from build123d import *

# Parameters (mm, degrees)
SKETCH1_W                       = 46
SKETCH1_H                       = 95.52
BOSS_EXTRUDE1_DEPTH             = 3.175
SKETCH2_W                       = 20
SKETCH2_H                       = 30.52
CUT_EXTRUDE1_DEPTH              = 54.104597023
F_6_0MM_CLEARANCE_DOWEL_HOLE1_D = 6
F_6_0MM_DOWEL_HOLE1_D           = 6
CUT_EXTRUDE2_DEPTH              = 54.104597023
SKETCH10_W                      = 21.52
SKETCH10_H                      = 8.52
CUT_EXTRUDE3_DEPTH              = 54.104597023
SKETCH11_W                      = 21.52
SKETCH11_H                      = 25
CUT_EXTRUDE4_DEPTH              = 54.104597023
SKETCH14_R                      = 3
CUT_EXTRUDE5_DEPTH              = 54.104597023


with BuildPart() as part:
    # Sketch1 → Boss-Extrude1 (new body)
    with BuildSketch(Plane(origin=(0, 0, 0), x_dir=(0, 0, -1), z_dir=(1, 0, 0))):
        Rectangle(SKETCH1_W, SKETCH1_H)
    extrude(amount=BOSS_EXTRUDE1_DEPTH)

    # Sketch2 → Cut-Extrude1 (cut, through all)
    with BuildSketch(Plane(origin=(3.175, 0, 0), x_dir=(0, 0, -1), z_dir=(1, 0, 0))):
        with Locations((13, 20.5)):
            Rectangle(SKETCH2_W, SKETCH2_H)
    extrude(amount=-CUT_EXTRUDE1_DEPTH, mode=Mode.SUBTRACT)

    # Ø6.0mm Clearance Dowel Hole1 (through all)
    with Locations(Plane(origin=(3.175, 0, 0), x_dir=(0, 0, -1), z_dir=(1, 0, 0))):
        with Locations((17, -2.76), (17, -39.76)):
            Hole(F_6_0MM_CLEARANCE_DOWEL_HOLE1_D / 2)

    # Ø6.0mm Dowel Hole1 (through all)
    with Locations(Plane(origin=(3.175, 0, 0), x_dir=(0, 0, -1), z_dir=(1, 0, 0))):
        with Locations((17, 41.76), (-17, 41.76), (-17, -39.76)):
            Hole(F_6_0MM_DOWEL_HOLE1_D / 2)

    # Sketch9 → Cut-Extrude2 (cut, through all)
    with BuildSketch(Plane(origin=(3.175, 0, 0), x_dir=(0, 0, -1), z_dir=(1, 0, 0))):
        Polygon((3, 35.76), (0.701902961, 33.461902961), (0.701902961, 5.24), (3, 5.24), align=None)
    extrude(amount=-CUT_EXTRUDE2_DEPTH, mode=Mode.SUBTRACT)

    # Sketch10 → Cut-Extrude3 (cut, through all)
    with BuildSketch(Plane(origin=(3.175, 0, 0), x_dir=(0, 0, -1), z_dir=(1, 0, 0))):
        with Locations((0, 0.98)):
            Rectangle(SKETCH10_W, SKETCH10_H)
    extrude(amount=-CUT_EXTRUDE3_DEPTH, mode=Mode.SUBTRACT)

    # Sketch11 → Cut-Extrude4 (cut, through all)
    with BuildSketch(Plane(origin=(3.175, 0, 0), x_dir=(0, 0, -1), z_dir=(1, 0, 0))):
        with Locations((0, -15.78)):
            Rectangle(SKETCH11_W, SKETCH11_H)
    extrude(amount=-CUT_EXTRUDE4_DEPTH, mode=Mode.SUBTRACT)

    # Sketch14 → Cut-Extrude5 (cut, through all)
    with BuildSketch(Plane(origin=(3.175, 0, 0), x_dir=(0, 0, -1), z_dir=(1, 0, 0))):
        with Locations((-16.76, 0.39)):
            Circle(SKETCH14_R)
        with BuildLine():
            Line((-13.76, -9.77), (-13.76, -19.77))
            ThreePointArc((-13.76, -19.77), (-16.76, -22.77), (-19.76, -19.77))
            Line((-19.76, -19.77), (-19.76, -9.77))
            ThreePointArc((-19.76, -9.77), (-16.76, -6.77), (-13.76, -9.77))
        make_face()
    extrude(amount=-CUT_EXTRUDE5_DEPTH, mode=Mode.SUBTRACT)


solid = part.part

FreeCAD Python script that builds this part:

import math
import FreeCAD as App
import Part
import Sketcher

V = App.Vector
Q = App.Units.Quantity

doc = App.newDocument("Part")
params = doc.addObject("Spreadsheet::Sheet", "Params")
for row, (alias, value) in enumerate([
    ("sketch1_height", "46 mm"),
    ("sketch1_width", "95.52 mm"),
    ("pad1_length", "3.175 mm"),
    ("sketch2_height", "20 mm"),
    ("sketch2_width", "30.52 mm"),
    ("sketch3_diameter", "6 mm"),
    ("hole_diameter", "6 mm"),
    ("sketch4_diameter", "6 mm"),
    ("hole2_diameter", "6 mm"),
    ("sketch5_width", "30.52 mm"),
    ("sketch5_length", "3.25 mm"),
    ("sketch6_width", "8.52 mm"),
    ("sketch6_height", "21.52 mm"),
    ("sketch7_width", "25 mm"),
    ("sketch7_height", "21.52 mm"),
    ("sketch8_diameter", "6 mm"),
    ("sketch8_width", "10 mm"),
], start=1):
    params.set(f"A{row}", alias)
    params.set(f"B{row}", "=" + value)
    params.setAlias(f"B{row}", alias)

body = doc.addObject("PartDesign::Body", "Body")

# Sketch on YZ plane
sketch1 = body.newObject("Sketcher::SketchObject", "Sketch")
sketch1.AttachmentSupport = (doc.getObject("YZ_Plane"), [""])
sketch1.MapMode = "FlatFace"
sketch1.addGeometry([
    Part.LineSegment(V(48, 23, 0), V(-48, 23, 0)),
    Part.LineSegment(V(-48, 23, 0), V(-48, -23, 0)),
    Part.LineSegment(V(-48, -23, 0), V(48, -23, 0)),
    Part.LineSegment(V(48, -23, 0), V(48, 23, 0)),
], False)
sketch1.addConstraint([
    Sketcher.Constraint("Coincident", 0, 2, 1, 1),
    Sketcher.Constraint("Coincident", 1, 2, 2, 1),
    Sketcher.Constraint("Coincident", 2, 2, 3, 1),
    Sketcher.Constraint("Coincident", 3, 2, 0, 1),
    Sketcher.Constraint("Horizontal", 0),
    Sketcher.Constraint("Vertical", 1),
    Sketcher.Constraint("Horizontal", 2),
    Sketcher.Constraint("Vertical", 3),
    Sketcher.Constraint("Symmetric", 0, 2, 2, 2, -1, 1),
    Sketcher.Constraint("DistanceY", 1, 2, 1, 1, 46.0),
    Sketcher.Constraint("DistanceX", 0, 2, 0, 1, 95.52),
])
sketch1.setExpression("Constraints[9]", "Params.sketch1_height")
sketch1.setExpression("Constraints[10]", "Params.sketch1_width")
pad1 = body.newObject("PartDesign::Pad", "Pad")
pad1.Profile = sketch1
pad1.setExpression("Length", "Params.pad1_length")

# Sketch on YZ plane
sketch2 = body.newObject("Sketcher::SketchObject", "Sketch001")
sketch2.AttachmentSupport = (doc.getObject("YZ_Plane"), [""])
sketch2.MapMode = "FlatFace"
sketch2.AttachmentOffset = App.Placement(V(0, 0, 3.175), App.Rotation())
sketch2.addGeometry([
    Part.LineSegment(V(36, -3, 0), V(5, -3, 0)),
    Part.LineSegment(V(5, -3, 0), V(5, -23, 0)),
    Part.LineSegment(V(5, -23, 0), V(36, -23, 0)),
    Part.LineSegment(V(36, -23, 0), V(36, -3, 0)),
], False)
sketch2.addConstraint([
    Sketcher.Constraint("Coincident", 0, 2, 1, 1),
    Sketcher.Constraint("Coincident", 1, 2, 2, 1),
    Sketcher.Constraint("Coincident", 2, 2, 3, 1),
    Sketcher.Constraint("Coincident", 3, 2, 0, 1),
    Sketcher.Constraint("Horizontal", 0),
    Sketcher.Constraint("Vertical", 1),
    Sketcher.Constraint("Horizontal", 2),
    Sketcher.Constraint("Vertical", 3),
    Sketcher.Constraint("DistanceY", 1, 2, 1, 1, 20.0),
    Sketcher.Constraint("DistanceY", 0, 2, -1, 1, 3.0),
    Sketcher.Constraint("DistanceX", 0, 2, 0, 1, 30.52),
    Sketcher.Constraint("DistanceX", -1, 1, 0, 2, 5.24),
])
sketch2.setExpression("Constraints[8]", "Params.sketch2_height")
sketch2.setExpression("Constraints[10]", "Params.sketch2_width")
pocket1 = body.newObject("PartDesign::Pocket", "Pocket")
pocket1.Profile = sketch2
pocket1.Type = "ThroughAll"

# Sketch on YZ plane
sketch3 = body.newObject("Sketcher::SketchObject", "Sketch002")
sketch3.AttachmentSupport = (doc.getObject("YZ_Plane"), [""])
sketch3.MapMode = "FlatFace"
sketch3.AttachmentOffset = App.Placement(V(0, 0, 3.175), App.Rotation())
sketch3.addGeometry([
    Part.Circle(V(-2.8, -17, 0), V(0, 0, 1), 3),
    Part.Circle(V(-39.8, -17, 0), V(0, 0, 1), 3),
], False)
sketch3.addConstraint([
    Sketcher.Constraint("Equal", 0, 1),
    Sketcher.Constraint("Horizontal", 0, 3, 1, 3),
    Sketcher.Constraint("Diameter", 0, 6.0),
    Sketcher.Constraint("DistanceY", 0, 3, -1, 1, 17.0),
    Sketcher.Constraint("DistanceX", 1, 3, 0, 3, 37.0),
    Sketcher.Constraint("DistanceX", 0, 3, -1, 1, 2.76),
])
sketch3.setExpression("Constraints[2]", "Params.sketch3_diameter")
doc.recompute()
hole = body.newObject("PartDesign::Hole", "Hole")
hole.Profile = sketch3
hole.ThreadType = "None"
hole.setExpression("Diameter", "Params.hole_diameter")
hole.DepthType = "ThroughAll"

# Sketch on YZ plane
sketch4 = body.newObject("Sketcher::SketchObject", "Sketch003")
sketch4.AttachmentSupport = (doc.getObject("YZ_Plane"), [""])
sketch4.MapMode = "FlatFace"
sketch4.AttachmentOffset = App.Placement(V(0, 0, 3.175), App.Rotation())
sketch4.addGeometry([
    Part.Circle(V(41.8, -17, 0), V(0, 0, 1), 3),
    Part.Circle(V(41.8, 17, 0), V(0, 0, 1), 3),
    Part.Circle(V(-39.8, 17, 0), V(0, 0, 1), 3),
], False)
sketch4.addConstraint([
    Sketcher.Constraint("Equal", 0, 1),
    Sketcher.Constraint("Equal", 1, 2),
    Sketcher.Constraint("Symmetric", 0, 3, 1, 3, -1),
    Sketcher.Constraint("Horizontal", 1, 3, 2, 3),
    Sketcher.Constraint("Diameter", 0, 6.0),
    Sketcher.Constraint("DistanceY", 0, 3, -1, 1, 17.0),
    Sketcher.Constraint("DistanceX", -1, 1, 0, 3, 41.76),
    Sketcher.Constraint("DistanceX", 2, 3, -1, 1, 39.76),
])
sketch4.setExpression("Constraints[4]", "Params.sketch4_diameter")
doc.recompute()
hole2 = body.newObject("PartDesign::Hole", "Hole001")
hole2.Profile = sketch4
hole2.ThreadType = "None"
hole2.setExpression("Diameter", "Params.hole2_diameter")
hole2.DepthType = "ThroughAll"

# Sketch on YZ plane
sketch5 = body.newObject("Sketcher::SketchObject", "Sketch004")
sketch5.AttachmentSupport = (doc.getObject("YZ_Plane"), [""])
sketch5.MapMode = "FlatFace"
sketch5.AttachmentOffset = App.Placement(V(0, 0, 3.175), App.Rotation())
sketch5.addGeometry([
    Part.LineSegment(V(35.8, -3, 0), V(33.5, -0.7, 0)),
    Part.LineSegment(V(33.5, -0.7, 0), V(5.2, -0.7, 0)),
    Part.LineSegment(V(5.2, -0.7, 0), V(5.2, -3, 0)),
    Part.LineSegment(V(5.2, -3, 0), V(35.8, -3, 0)),
], False)
sketch5.addConstraint([
    Sketcher.Constraint("Coincident", 0, 2, 1, 1),
    Sketcher.Constraint("Coincident", 1, 2, 2, 1),
    Sketcher.Constraint("Coincident", 2, 2, 3, 1),
    Sketcher.Constraint("Coincident", 3, 2, 0, 1),
    Sketcher.Constraint("Horizontal", 1),
    Sketcher.Constraint("Vertical", 2),
    Sketcher.Constraint("Horizontal", 3),
    Sketcher.Constraint("Angle", 0, Q("135 deg")),
    Sketcher.Constraint("DistanceY", 2, 2, -1, 1, 3.0),
    Sketcher.Constraint("DistanceX", 3, 1, 3, 2, 30.52),
    Sketcher.Constraint("Distance", 0, 3.25),
    Sketcher.Constraint("DistanceX", -1, 1, 1, 2, 5.24),
])
sketch5.setExpression("Constraints[9]", "Params.sketch5_width")
sketch5.setExpression("Constraints[10]", "Params.sketch5_length")
pocket2 = body.newObject("PartDesign::Pocket", "Pocket001")
pocket2.Profile = sketch5
pocket2.Type = "ThroughAll"

# Sketch on YZ plane
sketch6 = body.newObject("Sketcher::SketchObject", "Sketch005")
sketch6.AttachmentSupport = (doc.getObject("YZ_Plane"), [""])
sketch6.MapMode = "FlatFace"
sketch6.AttachmentOffset = App.Placement(V(0, 0, 3.175), App.Rotation())
sketch6.addGeometry([
    Part.LineSegment(V(5, 11, 0), V(-3, 11, 0)),
    Part.LineSegment(V(-3, 11, 0), V(-3, -11, 0)),
    Part.LineSegment(V(-3, -11, 0), V(5, -11, 0)),
    Part.LineSegment(V(5, -11, 0), V(5, 11, 0)),
], False)
sketch6.addConstraint([
    Sketcher.Constraint("Coincident", 0, 2, 1, 1),
    Sketcher.Constraint("Coincident", 1, 2, 2, 1),
    Sketcher.Constraint("Coincident", 2, 2, 3, 1),
    Sketcher.Constraint("Coincident", 3, 2, 0, 1),
    Sketcher.Constraint("Horizontal", 0),
    Sketcher.Constraint("Vertical", 1),
    Sketcher.Constraint("Horizontal", 2),
    Sketcher.Constraint("Vertical", 3),
    Sketcher.Constraint("DistanceX", 0, 2, 0, 1, 8.52),
    Sketcher.Constraint("DistanceY", 1, 2, 1, 1, 21.52),
    Sketcher.Constraint("DistanceX", 0, 2, -1, 1, 3.28),
    Sketcher.Constraint("DistanceY", -1, 1, 0, 2, 10.76),
])
sketch6.setExpression("Constraints[8]", "Params.sketch6_width")
sketch6.setExpression("Constraints[9]", "Params.sketch6_height")
pocket3 = body.newObject("PartDesign::Pocket", "Pocket002")
pocket3.Profile = sketch6
pocket3.Type = "ThroughAll"

# Sketch on YZ plane
sketch7 = body.newObject("Sketcher::SketchObject", "Sketch006")
sketch7.AttachmentSupport = (doc.getObject("YZ_Plane"), [""])
sketch7.MapMode = "FlatFace"
sketch7.AttachmentOffset = App.Placement(V(0, 0, 3.175), App.Rotation())
sketch7.addGeometry([
    Part.LineSegment(V(-3, 11, 0), V(-28, 11, 0)),
    Part.LineSegment(V(-28, 11, 0), V(-28, -11, 0)),
    Part.LineSegment(V(-28, -11, 0), V(-3, -11, 0)),
    Part.LineSegment(V(-3, -11, 0), V(-3, 11, 0)),
], False)
sketch7.addConstraint([
    Sketcher.Constraint("Coincident", 0, 2, 1, 1),
    Sketcher.Constraint("Coincident", 1, 2, 2, 1),
    Sketcher.Constraint("Coincident", 2, 2, 3, 1),
    Sketcher.Constraint("Coincident", 3, 2, 0, 1),
    Sketcher.Constraint("Horizontal", 0),
    Sketcher.Constraint("Vertical", 1),
    Sketcher.Constraint("Horizontal", 2),
    Sketcher.Constraint("Vertical", 3),
    Sketcher.Constraint("DistanceX", 0, 2, 0, 1, 25.0),
    Sketcher.Constraint("DistanceY", 1, 2, 1, 1, 21.52),
    Sketcher.Constraint("DistanceX", 0, 2, -1, 1, 28.28),
    Sketcher.Constraint("DistanceY", -1, 1, 0, 2, 10.76),
])
sketch7.setExpression("Constraints[8]", "Params.sketch7_width")
sketch7.setExpression("Constraints[9]", "Params.sketch7_height")
pocket4 = body.newObject("PartDesign::Pocket", "Pocket003")
pocket4.Profile = sketch7
pocket4.Type = "ThroughAll"

# Sketch on YZ plane
sketch8 = body.newObject("Sketcher::SketchObject", "Sketch007")
sketch8.AttachmentSupport = (doc.getObject("YZ_Plane"), [""])
sketch8.MapMode = "FlatFace"
sketch8.AttachmentOffset = App.Placement(V(0, 0, 3.175), App.Rotation())
sketch8.addGeometry([
    Part.Circle(V(0.4, 16.8, 0), V(0, 0, 1), 3),  # 0
    Part.LineSegment(V(-19.8, 13.8, 0), V(-9.8, 13.8, 0)),  # 1
    Part.ArcOfCircle(Part.Circle(V(-9.8, 16.8, 0), V(0, 0, 1), 3), math.radians(-90), math.radians(90)),  # 2
    Part.LineSegment(V(-9.8, 19.8, 0), V(-19.8, 19.8, 0)),  # 3
    Part.ArcOfCircle(Part.Circle(V(-19.8, 16.8, 0), V(0, 0, 1), 3), math.radians(90), math.radians(270)),  # 4
], False)
sketch8.addConstraint([
    Sketcher.Constraint("Tangent", 1, 2, 2, 1),
    Sketcher.Constraint("Tangent", 2, 2, 3, 1),
    Sketcher.Constraint("Tangent", 3, 2, 4, 1),
    Sketcher.Constraint("Tangent", 4, 2, 1, 1),
    Sketcher.Constraint("Horizontal", 1),
    Sketcher.Constraint("Horizontal", 3),
    Sketcher.Constraint("Equal", 0, 2),
    Sketcher.Constraint("Horizontal", 0, 3, 2, 3),
    Sketcher.Constraint("Diameter", 0, 6.0),
    Sketcher.Constraint("DistanceX", 1, 1, 1, 2, 10.0),
    Sketcher.Constraint("DistanceX", -1, 1, 0, 3, 0.39),
    Sketcher.Constraint("DistanceY", -1, 1, 0, 3, 16.76),
    Sketcher.Constraint("DistanceX", 2, 3, -1, 1, 9.77),
])
sketch8.setExpression("Constraints[8]", "Params.sketch8_diameter")
sketch8.setExpression("Constraints[9]", "Params.sketch8_width")
pocket5 = body.newObject("PartDesign::Pocket", "Pocket004")
pocket5.Profile = sketch8
pocket5.Type = "ThroughAll"

doc.recompute()
